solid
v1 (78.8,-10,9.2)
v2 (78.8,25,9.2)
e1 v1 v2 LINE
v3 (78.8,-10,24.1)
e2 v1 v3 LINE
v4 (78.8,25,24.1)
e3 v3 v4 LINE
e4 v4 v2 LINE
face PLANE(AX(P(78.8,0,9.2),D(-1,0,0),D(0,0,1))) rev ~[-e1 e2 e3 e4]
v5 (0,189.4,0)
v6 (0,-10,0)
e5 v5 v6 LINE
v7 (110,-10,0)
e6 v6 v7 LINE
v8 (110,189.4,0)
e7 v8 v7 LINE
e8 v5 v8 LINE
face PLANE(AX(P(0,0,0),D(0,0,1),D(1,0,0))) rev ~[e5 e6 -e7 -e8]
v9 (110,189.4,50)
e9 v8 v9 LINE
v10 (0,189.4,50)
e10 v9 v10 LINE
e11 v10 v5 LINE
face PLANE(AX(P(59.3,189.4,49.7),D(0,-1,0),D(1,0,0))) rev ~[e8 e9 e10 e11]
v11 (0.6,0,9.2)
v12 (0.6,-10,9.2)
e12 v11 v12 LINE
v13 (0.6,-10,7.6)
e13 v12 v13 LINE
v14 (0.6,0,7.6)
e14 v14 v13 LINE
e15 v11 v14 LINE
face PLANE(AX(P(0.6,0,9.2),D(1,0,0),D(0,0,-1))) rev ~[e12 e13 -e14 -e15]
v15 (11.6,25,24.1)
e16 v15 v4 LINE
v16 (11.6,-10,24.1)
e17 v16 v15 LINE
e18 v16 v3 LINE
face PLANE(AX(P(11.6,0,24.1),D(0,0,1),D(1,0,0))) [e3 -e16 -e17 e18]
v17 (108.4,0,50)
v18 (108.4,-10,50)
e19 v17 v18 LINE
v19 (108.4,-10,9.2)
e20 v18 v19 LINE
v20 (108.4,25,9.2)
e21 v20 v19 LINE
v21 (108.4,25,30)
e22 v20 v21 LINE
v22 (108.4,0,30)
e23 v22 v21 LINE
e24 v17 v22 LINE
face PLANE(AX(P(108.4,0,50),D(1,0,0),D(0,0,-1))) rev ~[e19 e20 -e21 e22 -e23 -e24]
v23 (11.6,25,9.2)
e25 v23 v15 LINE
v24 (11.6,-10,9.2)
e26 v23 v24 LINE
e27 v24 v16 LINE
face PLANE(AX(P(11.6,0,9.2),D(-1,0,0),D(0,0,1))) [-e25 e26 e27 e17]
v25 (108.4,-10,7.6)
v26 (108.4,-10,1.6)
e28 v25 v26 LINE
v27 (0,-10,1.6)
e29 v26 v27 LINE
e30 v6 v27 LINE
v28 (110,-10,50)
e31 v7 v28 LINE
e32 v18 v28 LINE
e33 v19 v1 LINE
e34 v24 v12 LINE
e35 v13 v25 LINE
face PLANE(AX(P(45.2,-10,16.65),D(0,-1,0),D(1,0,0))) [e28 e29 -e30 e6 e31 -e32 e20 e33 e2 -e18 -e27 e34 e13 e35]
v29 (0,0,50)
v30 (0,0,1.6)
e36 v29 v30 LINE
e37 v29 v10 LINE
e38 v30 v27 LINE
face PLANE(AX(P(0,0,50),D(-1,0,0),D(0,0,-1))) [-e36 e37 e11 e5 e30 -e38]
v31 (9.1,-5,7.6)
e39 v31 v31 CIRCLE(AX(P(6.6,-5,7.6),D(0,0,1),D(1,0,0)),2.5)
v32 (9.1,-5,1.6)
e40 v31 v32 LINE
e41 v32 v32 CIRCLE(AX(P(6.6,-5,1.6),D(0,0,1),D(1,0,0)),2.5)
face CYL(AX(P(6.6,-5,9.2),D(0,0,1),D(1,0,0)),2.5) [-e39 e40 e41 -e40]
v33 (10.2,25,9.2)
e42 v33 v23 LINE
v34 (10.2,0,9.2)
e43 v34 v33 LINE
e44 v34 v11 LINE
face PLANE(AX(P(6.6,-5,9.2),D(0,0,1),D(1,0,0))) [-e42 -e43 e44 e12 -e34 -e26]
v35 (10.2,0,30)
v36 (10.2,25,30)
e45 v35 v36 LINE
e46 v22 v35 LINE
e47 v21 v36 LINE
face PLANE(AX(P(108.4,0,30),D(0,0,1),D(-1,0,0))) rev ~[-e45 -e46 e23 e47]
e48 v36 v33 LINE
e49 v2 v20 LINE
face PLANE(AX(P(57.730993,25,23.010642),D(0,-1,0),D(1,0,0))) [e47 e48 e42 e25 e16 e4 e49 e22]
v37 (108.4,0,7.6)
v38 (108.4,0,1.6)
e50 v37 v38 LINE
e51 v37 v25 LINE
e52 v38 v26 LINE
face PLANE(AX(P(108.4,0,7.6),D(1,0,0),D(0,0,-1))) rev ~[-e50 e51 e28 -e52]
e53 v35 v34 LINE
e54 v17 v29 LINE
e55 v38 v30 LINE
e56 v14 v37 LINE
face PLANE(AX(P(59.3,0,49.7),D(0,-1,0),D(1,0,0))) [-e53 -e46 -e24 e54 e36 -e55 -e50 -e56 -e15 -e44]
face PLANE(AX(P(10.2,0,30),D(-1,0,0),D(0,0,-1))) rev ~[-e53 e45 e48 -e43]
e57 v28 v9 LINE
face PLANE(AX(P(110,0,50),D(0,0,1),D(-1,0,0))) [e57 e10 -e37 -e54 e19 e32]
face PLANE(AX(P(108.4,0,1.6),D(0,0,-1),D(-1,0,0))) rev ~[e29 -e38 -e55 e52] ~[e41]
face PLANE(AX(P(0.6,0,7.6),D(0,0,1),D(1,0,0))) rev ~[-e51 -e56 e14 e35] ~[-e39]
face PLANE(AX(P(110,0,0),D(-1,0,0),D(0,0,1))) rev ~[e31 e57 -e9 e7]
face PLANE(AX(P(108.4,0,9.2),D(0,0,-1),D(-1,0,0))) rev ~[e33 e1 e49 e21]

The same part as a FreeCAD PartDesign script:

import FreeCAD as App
import Part
import Sketcher
Q = App.Units.Quantity

doc = App.newDocument("Part")
body = doc.addObject("PartDesign::Body", "Body")

sketch1 = body.newObject("Sketcher::SketchObject", "Sketch")
sketch1.AttachmentSupport = (doc.getObject("XZ_Plane"), [""])
sketch1.MapMode = "FlatFace"
sketch1.addGeometry(Part.LineSegment(App.Vector(110, 50, 0), App.Vector(0, 50, 0)), False)
sketch1.addGeometry(Part.LineSegment(App.Vector(0, 50, 0), App.Vector(0, 0, 0)), False)
sketch1.addGeometry(Part.LineSegment(App.Vector(0, 0, 0), App.Vector(110, 0, 0)), False)
sketch1.addGeometry(Part.LineSegment(App.Vector(110, 0, 0), App.Vector(110, 50, 0)), False)
sketch1.addConstraint(Sketcher.Constraint("Coincident", 0, 2, 1, 1))
sketch1.addConstraint(Sketcher.Constraint("Coincident", 1, 2, 2, 1))
sketch1.addConstraint(Sketcher.Constraint("Coincident", 2, 2, 3, 1))
sketch1.addConstraint(Sketcher.Constraint("Coincident", 3, 2, 0, 1))
sketch1.addConstraint(Sketcher.Constraint("Horizontal", 0))
sketch1.addConstraint(Sketcher.Constraint("Vertical", 1))
sketch1.addConstraint(Sketcher.Constraint("Horizontal", 2))
sketch1.addConstraint(Sketcher.Constraint("Vertical", 3))
sketch1.addConstraint(Sketcher.Constraint("Coincident", 1, 2, -1, 1))
sketch1.addConstraint(Sketcher.Constraint("DistanceX", 0, 2, 0, 1, Q("110 mm")))
sketch1.addConstraint(Sketcher.Constraint("DistanceY", 1, 2, 1, 1, Q("50 mm")))
pad1 = body.newObject("PartDesign::Pad", "Pad")
pad1.Profile = sketch1
pad1.Length = 189.4
pad1.Reversed = True

sketch2 = body.newObject("Sketcher::SketchObject", "Sketch001")
sketch2.AttachmentSupport = (doc.getObject("XZ_Plane"), [""])
sketch2.MapMode = "FlatFace"
sketch2.addGeometry(Part.LineSegment(App.Vector(11.6, 24.1, 0), App.Vector(11.6, 9.2, 0)), False)
sketch2.addGeometry(Part.LineSegment(App.Vector(11.6, 9.2, 0), App.Vector(0.6, 9.2, 0)), False)
sketch2.addGeometry(Part.LineSegment(App.Vector(0.6, 9.2, 0), App.Vector(0.6, 7.6, 0)), False)
sketch2.addGeometry(Part.LineSegment(App.Vector(0.6, 7.6, 0), App.Vector(108.4, 7.6, 0)), False)
sketch2.addGeometry(Part.LineSegment(App.Vector(108.4, 7.6, 0), App.Vector(108.4, 1.6, 0)), False)
sketch2.addGeometry(Part.LineSegment(App.Vector(108.4, 1.6, 0), App.Vector(0, 1.6, 0)), False)
sketch2.addGeometry(Part.LineSegment(App.Vector(0, 1.6, 0), App.Vector(0, 0, 0)), False)
sketch2.addGeometry(Part.LineSegment(App.Vector(0, 0, 0), App.Vector(110, 0, 0)), False)
sketch2.addGeometry(Part.LineSegment(App.Vector(110, 0, 0), App.Vector(110, 50, 0)), False)
sketch2.addGeometry(Part.LineSegment(App.Vector(110, 50, 0), App.Vector(108.4, 50, 0)), False)
sketch2.addGeometry(Part.LineSegment(App.Vector(108.4, 50, 0), App.Vector(108.4, 9.2, 0)), False)
sketch2.addGeometry(Part.LineSegment(App.Vector(108.4, 9.2, 0), App.Vector(78.8, 9.2, 0)), False)
sketch2.addGeometry(Part.LineSegment(App.Vector(78.8, 9.2, 0), App.Vector(78.8, 24.1, 0)), False)
sketch2.addGeometry(Part.LineSegment(App.Vector(78.8, 24.1, 0), App.Vector(11.6, 24.1, 0)), False)
sketch2.addConstraint(Sketcher.Constraint("Coincident", 0, 2, 1, 1))
sketch2.addConstraint(Sketcher.Constraint("Coincident", 1, 2, 2, 1))
sketch2.addConstraint(Sketcher.Constraint("Coincident", 2, 2, 3, 1))
sketch2.addConstraint(Sketcher.Constraint("Coincident", 3, 2, 4, 1))
sketch2.addConstraint(Sketcher.Constraint("Coincident", 4, 2, 5, 1))
sketch2.addConstraint(Sketcher.Constraint("Coincident", 5, 2, 6, 1))
sketch2.addConstraint(Sketcher.Constraint("Coincident", 6, 2, 7, 1))
sketch2.addConstraint(Sketcher.Constraint("Coincident", 7, 2, 8, 1))
sketch2.addConstraint(Sketcher.Constraint("Coincident", 8, 2, 9, 1))
sketch2.addConstraint(Sketcher.Constraint("Coincident", 9, 2, 10, 1))
sketch2.addConstraint(Sketcher.Constraint("Coincident", 10, 2, 11, 1))
sketch2.addConstraint(Sketcher.Constraint("Coincident", 11, 2, 12, 1))
sketch2.addConstraint(Sketcher.Constraint("Coincident", 12, 2, 13, 1))
sketch2.addConstraint(Sketcher.Constraint("Coincident", 13, 2, 0, 1))
sketch2.addConstraint(Sketcher.Constraint("Vertical", 0))
sketch2.addConstraint(Sketcher.Constraint("Horizontal", 1))
sketch2.addConstraint(Sketcher.Constraint("Vertical", 2))
sketch2.addConstraint(Sketcher.Constraint("Horizontal", 3))
sketch2.addConstraint(Sketcher.Constraint("Vertical", 4))
sketch2.addConstraint(Sketcher.Constraint("Horizontal", 5))
sketch2.addConstraint(Sketcher.Constraint("Vertical", 6))
sketch2.addConstraint(Sketcher.Constraint("Horizontal", 7))
sketch2.addConstraint(Sketcher.Constraint("Vertical", 8))
sketch2.addConstraint(Sketcher.Constraint("Horizontal", 9))
sketch2.addConstraint(Sketcher.Constraint("Vertical", 10))
sketch2.addConstraint(Sketcher.Constraint("Horizontal", 11))
sketch2.addConstraint(Sketcher.Constraint("Vertical", 12))
sketch2.addConstraint(Sketcher.Constraint("Horizontal", 13))
sketch2.addConstraint(Sketcher.Constraint("Coincident", 6, 2, -1, 1))
sketch2.addConstraint(Sketcher.Constraint("Horizontal", 1, 2, 10, 2))
sketch2.addConstraint(Sketcher.Constraint("Vertical", 4, 2, 9, 2))
sketch2.addConstraint(Sketcher.Constraint("Equal", 9, 2))
sketch2.addConstraint(Sketcher.Constraint("Equal", 2, 6))
sketch2.addConstraint(Sketcher.Constraint("DistanceX", 1, 2, 1, 1, Q("11 mm")))
sketch2.addConstraint(Sketcher.Constraint("DistanceX", 7, 1, 7, 2, Q("110 mm")))
sketch2.addConstraint(Sketcher.Constraint("DistanceY", 4, 2, 4, 1, Q("6 mm")))
sketch2.addConstraint(Sketcher.Constraint("DistanceY", 8, 1, 8, 2, Q("50 mm")))
sketch2.addConstraint(Sketcher.Constraint("DistanceX", 3, 1, 3, 2, Q("107.8 mm")))
sketch2.addConstraint(Sketcher.Constraint("DistanceX", 5, 2, 5, 1, Q("108.4 mm")))
sketch2.addConstraint(Sketcher.Constraint("DistanceX", 11, 2, 11, 1, Q("29.6 mm")))
sketch2.addConstraint(Sketcher.Constraint("DistanceY", 0, 2, 0, 1, Q("14.9 mm")))
pad2 = body.newObject("PartDesign::Pad", "Pad001")
pad2.Profile = sketch2
pad2.Length = 10

sketch3 = body.newObject("Sketcher::SketchObject", "Sketch002")
sketch3.AttachmentSupport = (doc.getObject("XZ_Plane"), [""])
sketch3.MapMode = "FlatFace"
sketch3.addGeometry(Part.LineSegment(App.Vector(78.8, 9.2, 0), App.Vector(108.4, 9.2, 0)), False)
sketch3.addGeometry(Part.LineSegment(App.Vector(108.4, 9.2, 0), App.Vector(108.4, 30, 0)), False)
sketch3.addGeometry(Part.LineSegment(App.Vector(108.4, 30, 0), App.Vector(10.2, 30, 0)), False)
sketch3.addGeometry(Part.LineSegment(App.Vector(10.2, 30, 0), App.Vector(10.2, 9.2, 0)), False)
sketch3.addGeometry(Part.LineSegment(App.Vector(10.2, 9.2, 0), App.Vector(11.6, 9.2, 0)), False)
sketch3.addGeometry(Part.LineSegment(App.Vector(11.6, 9.2, 0), App.Vector(11.6, 24.1, 0)), False)
sketch3.addGeometry(Part.LineSegment(App.Vector(11.6, 24.1, 0), App.Vector(78.8, 24.1, 0)), False)
sketch3.addGeometry(Part.LineSegment(App.Vector(78.8, 24.1, 0), App.Vector(78.8, 9.2, 0)), False)
sketch3.addConstraint(Sketcher.Constraint("Coincident", 0, 2, 1, 1))
sketch3.addConstraint(Sketcher.Constraint("Coincident", 1, 2, 2, 1))
sketch3.addConstraint(Sketcher.Constraint("Coincident", 2, 2, 3, 1))
sketch3.addConstraint(Sketcher.Constraint("Coincident", 3, 2, 4, 1))
sketch3.addConstraint(Sketcher.Constraint("Coincident", 4, 2, 5, 1))
sketch3.addConstraint(Sketcher.Constraint("Coincident", 5, 2, 6, 1))
sketch3.addConstraint(Sketcher.Constraint("Coincident", 6, 2, 7, 1))
sketch3.addConstraint(Sketcher.Constraint("Coincident", 7, 2, 0, 1))
sketch3.addConstraint(Sketcher.Constraint("Horizontal", 0))
sketch3.addConstraint(Sketcher.Constraint("Vertical", 1))
sketch3.addConstraint(Sketcher.Constraint("Horizontal", 2))
sketch3.addConstraint(Sketcher.Constraint("Vertical", 3))
sketch3.addConstraint(Sketcher.Constraint("Horizontal", 4))
sketch3.addConstraint(Sketcher.Constraint("Vertical", 5))
sketch3.addConstraint(Sketcher.Constraint("Horizontal", 6))
sketch3.addConstraint(Sketcher.Constraint("Vertical", 7))
sketch3.addConstraint(Sketcher.Constraint("Horizontal", 0, 2, 3, 2))
sketch3.addConstraint(Sketcher.Constraint("DistanceX", 0, 1, 0, 2, Q("29.6 mm")))
sketch3.addConstraint(Sketcher.Constraint("DistanceX", 2, 2, 2, 1, Q("98.2 mm")))
sketch3.addConstraint(Sketcher.Constraint("DistanceX", 4, 1, 4, 2, Q("1.4 mm")))
sketch3.addConstraint(Sketcher.Constraint("DistanceY", 1, 1, 1, 2, Q("20.8 mm")))
sketch3.addConstraint(Sketcher.Constraint("DistanceY", 5, 1, 5, 2, Q("14.9 mm")))
sketch3.addConstraint(Sketcher.Constraint("DistanceY", -1, 1, 1, 2, Q("30 mm")))
sketch3.addConstraint(Sketcher.Constraint("DistanceX", -1, 1, 0, 2, Q("108.4 mm")))
pocket1 = body.newObject("PartDesign::Pocket", "Pocket")
pocket1.Profile = sketch3
pocket1.Length = 25

sketch4 = body.newObject("Sketcher::SketchObject", "Sketch003")
sketch4.AttachmentSupport = (doc.getObject("XY_Plane"), [""])
sketch4.MapMode = "FlatFace"
sketch4.AttachmentOffset = App.Placement(App.Vector(0, 0, 9.2), App.Rotation())
sketch4.addGeometry(Part.Circle(App.Vector(6.6, -5, 0), App.Vector(0, 0, 1), 2.5), False)
sketch4.addConstraint(Sketcher.Constraint("Diameter", 0, Q("5 mm")))
sketch4.addConstraint(Sketcher.Constraint("DistanceY", 0, 3, -1, 1, Q("5 mm")))
sketch4.addConstraint(Sketcher.Constraint("DistanceX", -1, 1, 0, 3, Q("6.6 mm")))
pad3 = body.newObject("PartDesign::Pad", "Pad002")
pad3.Profile = sketch4
pad3.Type = "UpToLast"
pad3.Reversed = True

doc.recompute()
